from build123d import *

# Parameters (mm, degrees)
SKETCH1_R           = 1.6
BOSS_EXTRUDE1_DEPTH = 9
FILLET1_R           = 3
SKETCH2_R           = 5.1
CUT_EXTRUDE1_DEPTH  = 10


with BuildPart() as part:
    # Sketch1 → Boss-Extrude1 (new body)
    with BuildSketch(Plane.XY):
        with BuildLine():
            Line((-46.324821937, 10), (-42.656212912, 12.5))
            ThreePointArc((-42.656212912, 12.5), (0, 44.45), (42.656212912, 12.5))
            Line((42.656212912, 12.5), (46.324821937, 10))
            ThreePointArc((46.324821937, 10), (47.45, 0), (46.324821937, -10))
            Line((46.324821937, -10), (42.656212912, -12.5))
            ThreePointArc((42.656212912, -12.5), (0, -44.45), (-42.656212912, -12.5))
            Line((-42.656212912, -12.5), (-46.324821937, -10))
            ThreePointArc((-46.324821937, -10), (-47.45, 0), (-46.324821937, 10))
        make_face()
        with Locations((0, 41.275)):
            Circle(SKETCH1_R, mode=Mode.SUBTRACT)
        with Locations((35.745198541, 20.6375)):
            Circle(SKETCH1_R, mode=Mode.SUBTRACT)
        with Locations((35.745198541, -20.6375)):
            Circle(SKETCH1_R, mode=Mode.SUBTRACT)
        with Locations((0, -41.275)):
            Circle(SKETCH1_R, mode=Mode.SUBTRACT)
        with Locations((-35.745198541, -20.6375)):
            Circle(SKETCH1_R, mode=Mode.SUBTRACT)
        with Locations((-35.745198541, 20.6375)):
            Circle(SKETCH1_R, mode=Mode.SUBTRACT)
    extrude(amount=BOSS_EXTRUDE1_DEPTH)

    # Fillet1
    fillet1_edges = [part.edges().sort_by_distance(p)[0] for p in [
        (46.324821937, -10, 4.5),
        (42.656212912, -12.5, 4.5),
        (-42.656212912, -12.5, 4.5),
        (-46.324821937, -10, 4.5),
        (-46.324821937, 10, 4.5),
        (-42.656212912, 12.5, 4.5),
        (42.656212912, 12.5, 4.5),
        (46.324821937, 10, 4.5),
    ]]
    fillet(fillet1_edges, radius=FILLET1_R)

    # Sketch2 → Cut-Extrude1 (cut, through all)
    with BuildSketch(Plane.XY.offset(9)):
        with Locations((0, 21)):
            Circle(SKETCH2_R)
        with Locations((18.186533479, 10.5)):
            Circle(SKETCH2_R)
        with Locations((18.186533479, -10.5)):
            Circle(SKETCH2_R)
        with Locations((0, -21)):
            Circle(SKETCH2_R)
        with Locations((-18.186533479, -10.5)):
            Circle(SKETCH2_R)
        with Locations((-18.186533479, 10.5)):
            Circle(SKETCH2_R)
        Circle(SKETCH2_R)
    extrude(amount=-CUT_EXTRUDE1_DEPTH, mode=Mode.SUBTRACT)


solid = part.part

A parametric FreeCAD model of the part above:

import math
import FreeCAD as App
import Part
import Sketcher
Q = App.Units.Quantity


def edges_at(feature, points):
    """Names of the edges that pass closest to the given points."""
    edges = feature.Shape.Edges
    near = lambda p: min(range(len(edges)), key=lambda i: edges[i].distToShape(Part.Vertex(*p))[0])
    return sorted({f"Edge{near(p) + 1}" for p in points})

doc = App.newDocument("Part")
body = doc.addObject("PartDesign::Body", "Body")

# Sketch on XY plane
sketch1 = body.newObject("Sketcher::SketchObject", "Sketch")
sketch1.AttachmentSupport = (doc.getObject("XY_Plane"), [""])
sketch1.MapMode = "FlatFace"
sketch1.addGeometry([
    Part.LineSegment(App.Vector(-42.656213, 12.5, 0), App.Vector(-46.324822, 10, 0)),  # 0
    Part.ArcOfCircle(Part.Circle(App.Vector(-2.45, 0, 0), App.Vector(0, 0, 1), 45), math.radians(167.160412), math.radians(192.839588)),  # 1
    Part.LineSegment(App.Vector(-46.324822, -10, 0), App.Vector(-42.656213, -12.5, 0)),  # 2
    Part.ArcOfCircle(Part.Circle(App.Vector(0, 0, 0), App.Vector(0, 0, 1), 44.45), math.radians(-163.667276), math.radians(-16.332724)),  # 3
    Part.LineSegment(App.Vector(42.656213, -12.5, 0), App.Vector(46.324822, -10, 0)),  # 4
    Part.ArcOfCircle(Part.Circle(App.Vector(2.45, 0, 0), App.Vector(0, 0, 1), 45), math.radians(-12.839588), math.radians(12.839588)),  # 5
    Part.LineSegment(App.Vector(46.324822, 10, 0), App.Vector(42.656213, 12.5, 0)),  # 6
    Part.ArcOfCircle(Part.Circle(App.Vector(0, 0, 0), App.Vector(0, 0, 1), 44.45), math.radians(16.332724), math.radians(163.667276)),  # 7
    Part.Circle(App.Vector(35.745199, -20.6375, 0), App.Vector(0, 0, 1), 1.6),  # 8
    Part.Circle(App.Vector(0, -41.275, 0), App.Vector(0, 0, 1), 1.6),  # 9
    Part.Circle(App.Vector(-35.745199, -20.6375, 0), App.Vector(0, 0, 1), 1.6),  # 10
    Part.Circle(App.Vector(35.745199, 20.6375, 0), App.Vector(0, 0, 1), 1.6),  # 11
    Part.Circle(App.Vector(-35.745199, 20.6375, 0), App.Vector(0, 0, 1), 1.6),  # 12
    Part.Circle(App.Vector(0, 41.275, 0), App.Vector(0, 0, 1), 1.6),  # 13
], False)
sketch1.addConstraint([
    Sketcher.Constraint("Coincident", 0, 2, 1, 1),
    Sketcher.Constraint("Coincident", 1, 2, 2, 1),
    Sketcher.Constraint("Coincident", 2, 2, 3, 1),
    Sketcher.Constraint("Coincident", 3, 2, 4, 1),
    Sketcher.Constraint("Coincident", 4, 2, 5, 1),
    Sketcher.Constraint("Coincident", 5, 2, 6, 1),
    Sketcher.Constraint("Coincident", 6, 2, 7, 1),
    Sketcher.Constraint("Coincident", 7, 2, 0, 1),
    Sketcher.Constraint("Coincident", 3, 3, -1, 1),
    Sketcher.Constraint("Coincident", 7, 3, -1, 1),
    Sketcher.Constraint("Equal", 1, 5),
    Sketcher.Constraint("Equal", 3, 7),
    Sketcher.Constraint("Equal", 8, 9),
    Sketcher.Constraint("Equal", 9, 10),
    Sketcher.Constraint("Equal", 10, 11),
    Sketcher.Constraint("Equal", 11, 12),
    Sketcher.Constraint("Equal", 12, 13),
    Sketcher.Constraint("Symmetric", 1, 3, 5, 3, -1, 1),
    Sketcher.Constraint("Symmetric", 10, 3, 11, 3, -1, 1),
    Sketcher.Constraint("Symmetric", 8, 3, 12, 3, -1, 1),
    Sketcher.Constraint("Symmetric", 9, 3, 13, 3, -1, 1),
    Sketcher.Constraint("Symmetric", 8, 3, 10, 3, -2),
    Sketcher.Constraint("Symmetric", 1, 2, 4, 2, -2),
    Sketcher.Constraint("PointOnObject", 9, 3, -2),
    Sketcher.Constraint("Parallel", 0, 4),
    Sketcher.Constraint("Parallel", 2, 6),
    Sketcher.Constraint("Horizontal", 2, 2, 3, 2),
    Sketcher.Constraint("Horizontal", 0, 2, 5, 2),
    Sketcher.Constraint("Vertical", 0, 2, 1, 2),
    Sketcher.Constraint("Radius", 1, Q("45 mm")),
    Sketcher.Constraint("Diameter", 8, Q("3.2 mm")),
    Sketcher.Constraint("Radius", 3, Q("44.45 mm")),
    Sketcher.Constraint("DistanceY", -1, 1, 0, 2, Q("10 mm")),
    Sketcher.Constraint("DistanceY", 3, 2, 6, 2, Q("25 mm")),
    Sketcher.Constraint("DistanceX", 1, 3, 5, 3, Q("4.9 mm")),
    Sketcher.Constraint("DistanceY", 9, 3, -1, 1, Q("41.275 mm")),
    Sketcher.Constraint("DistanceY", 8, 3, 11, 3, Q("41.275 mm")),
    Sketcher.Constraint("DistanceX", -1, 1, 8, 3, Q("35.745199 mm")),
])
pad1 = body.newObject("PartDesign::Pad", "Pad")
pad1.Profile = sketch1
pad1.Length = 9
doc.recompute()

fillet = body.newObject("PartDesign::Fillet", "Fillet")
fillet.Base = (pad1, edges_at(pad1, [
    (46.325, -10, 4.5),
    (42.656, -12.5, 4.5),
    (-42.656, -12.5, 4.5),
    (-46.325, -10, 4.5),
    (-46.325, 10, 4.5),
    (-42.656, 12.5, 4.5),
    (42.656, 12.5, 4.5),
    (46.325, 10, 4.5),
]))
fillet.Radius = 3

# Sketch on XY plane
sketch2 = body.newObject("Sketcher::SketchObject", "Sketch001")
sketch2.AttachmentSupport = (doc.getObject("XY_Plane"), [""])
sketch2.MapMode = "FlatFace"
sketch2.AttachmentOffset = App.Placement(App.Vector(0, 0, 9), App.Rotation())
sketch2.addGeometry([
    Part.Circle(App.Vector(0, 21, 0), App.Vector(0, 0, 1), 5.1),  # 0
    Part.Circle(App.Vector(18.186533, 10.5, 0), App.Vector(0, 0, 1), 5.1),  # 1
    Part.Circle(App.Vector(18.186533, -10.5, 0), App.Vector(0, 0, 1), 5.1),  # 2
    Part.Circle(App.Vector(0, -21, 0), App.Vector(0, 0, 1), 5.1),  # 3
    Part.Circle(App.Vector(-18.186533, -10.5, 0), App.Vector(0, 0, 1), 5.1),  # 4
    Part.Circle(App.Vector(-18.186533, 10.5, 0), App.Vector(0, 0, 1), 5.1),  # 5
    Part.Circle(App.Vector(0, 0, 0), App.Vector(0, 0, 1), 5.1),  # 6
], False)
sketch2.addConstraint([
    Sketcher.Constraint("Coincident", 6, 3, -1, 1),
    Sketcher.Constraint("Equal", 0, 1),
    Sketcher.Constraint("Equal", 1, 2),
    Sketcher.Constraint("Equal", 2, 3),
    Sketcher.Constraint("Equal", 3, 4),
    Sketcher.Constraint("Equal", 4, 5),
    Sketcher.Constraint("Equal", 5, 6),
    Sketcher.Constraint("Symmetric", 0, 3, 3, 3, -1, 1),
    Sketcher.Constraint("Symmetric", 1, 3, 4, 3, -1, 1),
    Sketcher.Constraint("Symmetric", 2, 3, 5, 3, -1, 1),
    Sketcher.Constraint("Symmetric", 2, 3, 4, 3, -2),
    Sketcher.Constraint("PointOnObject", 0, 3, -2),
    Sketcher.Constraint("Diameter", 0, Q("10.2 mm")),
    Sketcher.Constraint("DistanceY", -1, 1, 0, 3, Q("21 mm")),
    Sketcher.Constraint("DistanceY", 2, 3, 1, 3, Q("21 mm")),
    Sketcher.Constraint("DistanceX", -1, 1, 1, 3, Q("18.186533 mm")),
])
pocket1 = body.newObject("PartDesign::Pocket", "Pocket")
pocket1.Profile = sketch2
pocket1.Type = "ThroughAll"

doc.recompute()
